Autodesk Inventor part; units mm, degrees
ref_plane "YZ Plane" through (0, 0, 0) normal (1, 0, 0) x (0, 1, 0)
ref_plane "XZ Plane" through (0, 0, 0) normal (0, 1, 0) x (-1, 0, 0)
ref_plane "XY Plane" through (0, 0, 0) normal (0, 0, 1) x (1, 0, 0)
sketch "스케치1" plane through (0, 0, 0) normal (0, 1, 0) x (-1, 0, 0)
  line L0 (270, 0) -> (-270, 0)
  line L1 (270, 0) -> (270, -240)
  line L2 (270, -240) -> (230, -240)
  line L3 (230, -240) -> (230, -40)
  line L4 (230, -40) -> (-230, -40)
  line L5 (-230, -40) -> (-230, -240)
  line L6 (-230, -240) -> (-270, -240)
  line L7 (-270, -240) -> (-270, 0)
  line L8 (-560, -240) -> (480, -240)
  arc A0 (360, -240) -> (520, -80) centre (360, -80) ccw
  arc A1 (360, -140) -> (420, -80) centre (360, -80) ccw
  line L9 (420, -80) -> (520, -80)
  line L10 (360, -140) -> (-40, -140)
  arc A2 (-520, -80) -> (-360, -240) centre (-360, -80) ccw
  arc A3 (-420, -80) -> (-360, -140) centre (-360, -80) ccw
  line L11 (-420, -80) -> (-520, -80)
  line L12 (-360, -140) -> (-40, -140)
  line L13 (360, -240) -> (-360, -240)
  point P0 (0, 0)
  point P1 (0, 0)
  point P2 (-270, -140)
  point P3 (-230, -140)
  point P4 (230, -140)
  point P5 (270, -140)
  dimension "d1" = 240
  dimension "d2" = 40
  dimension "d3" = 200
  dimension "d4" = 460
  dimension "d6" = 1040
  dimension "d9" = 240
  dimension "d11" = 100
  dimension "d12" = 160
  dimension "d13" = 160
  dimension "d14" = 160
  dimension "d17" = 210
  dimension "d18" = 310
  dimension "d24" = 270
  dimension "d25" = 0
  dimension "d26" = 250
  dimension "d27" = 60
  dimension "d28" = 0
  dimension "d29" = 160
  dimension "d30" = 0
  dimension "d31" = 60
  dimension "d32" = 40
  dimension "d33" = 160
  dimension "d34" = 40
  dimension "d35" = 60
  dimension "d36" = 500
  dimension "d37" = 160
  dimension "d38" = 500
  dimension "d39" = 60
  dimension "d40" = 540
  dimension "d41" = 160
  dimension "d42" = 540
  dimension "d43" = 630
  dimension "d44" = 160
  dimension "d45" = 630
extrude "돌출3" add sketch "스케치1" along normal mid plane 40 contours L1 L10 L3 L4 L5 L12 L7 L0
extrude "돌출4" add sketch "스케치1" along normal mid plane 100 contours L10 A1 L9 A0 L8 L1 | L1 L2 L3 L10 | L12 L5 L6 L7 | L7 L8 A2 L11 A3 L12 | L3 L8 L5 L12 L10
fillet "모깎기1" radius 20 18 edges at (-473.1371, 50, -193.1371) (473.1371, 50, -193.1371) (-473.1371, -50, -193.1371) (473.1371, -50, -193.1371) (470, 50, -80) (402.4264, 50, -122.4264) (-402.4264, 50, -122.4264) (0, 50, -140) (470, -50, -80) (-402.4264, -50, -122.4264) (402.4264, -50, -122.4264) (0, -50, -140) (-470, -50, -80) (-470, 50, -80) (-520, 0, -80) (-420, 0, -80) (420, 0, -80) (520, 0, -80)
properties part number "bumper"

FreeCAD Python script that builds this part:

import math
import FreeCAD as App
import Part
import Sketcher
from FreeCAD import Vector
Q = App.Units.Quantity


def edges_at(feature, points):
    """Names of the edges that pass closest to the given points."""
    edges = feature.Shape.Edges
    near = lambda p: min(range(len(edges)), key=lambda i: edges[i].distToShape(Part.Vertex(*p))[0])
    return sorted({f"Edge{near(p) + 1}" for p in points})


def add_polygon(sketch, points):
    """Adds a closed chain of lines whose ends are joined by coincident constraints."""
    first, n = sketch.GeometryCount, len(points)
    for a, b in zip(points, points[1:] + points[:1]):
        sketch.addGeometry(Part.LineSegment(App.Vector(*a, 0), App.Vector(*b, 0)), False)
    for i in range(n):
        sketch.addConstraint(Sketcher.Constraint("Coincident", first + i, 2, first + (i + 1) % n, 1))

doc = App.newDocument("Part")
body = doc.addObject("PartDesign::Body", "Body")

# Sketch on XZ plane
sketch1 = doc.addObject("Sketcher::SketchObject", "Sketch")
body.addObject(sketch1)
sketch1.AttachmentSupport = (doc.XZ_Plane, [""])
sketch1.MapMode = "FlatFace"
add_polygon(sketch1, [(-270, -140), (-270, 0), (270, 0), (270, -140), (230, -140), (230, -40), (-230, -40), (-230, -140)])  # lines 0-7
sketch1.addConstraint(Sketcher.Constraint("Vertical", 0))
sketch1.addConstraint(Sketcher.Constraint("Horizontal", 1))
sketch1.addConstraint(Sketcher.Constraint("Vertical", 2))
sketch1.addConstraint(Sketcher.Constraint("Horizontal", 3))
sketch1.addConstraint(Sketcher.Constraint("Vertical", 4))
sketch1.addConstraint(Sketcher.Constraint("Horizontal", 5))
sketch1.addConstraint(Sketcher.Constraint("Vertical", 6))
sketch1.addConstraint(Sketcher.Constraint("Horizontal", 7))
sketch1.addConstraint(Sketcher.Constraint("Symmetric", 0, 2, 1, 2, -1, 1))
sketch1.addConstraint(Sketcher.Constraint("Symmetric", 3, 2, 6, 2, -2))
sketch1.addConstraint(Sketcher.Constraint("DistanceX", 1, 1, 1, 2, Q("540 mm")))
sketch1.addConstraint(Sketcher.Constraint("DistanceX", 3, 2, 3, 1, Q("40 mm")))
sketch1.addConstraint(Sketcher.Constraint("DistanceY", 4, 1, 4, 2, Q("100 mm")))
sketch1.addConstraint(Sketcher.Constraint("DistanceY", 4, 2, -1, 1, Q("40 mm")))
pad1 = doc.addObject("PartDesign::Pad", "Pad")
body.addObject(pad1)
pad1.Profile = sketch1
pad1.Length = 40
pad1.Midplane = True

# Sketch on XZ plane
sketch2 = doc.addObject("Sketcher::SketchObject", "Sketch001")
body.addObject(sketch2)
sketch2.AttachmentSupport = (doc.XZ_Plane, [""])
sketch2.MapMode = "FlatFace"
sketch2.addGeometry(Part.LineSegment(Vector(-360, -140, 0), Vector(360, -140, 0)), False)
sketch2.addGeometry(Part.ArcOfCircle(Part.Circle(Vector(360, -80, 0), Vector(0, 0, 1), 60), math.radians(-90), math.radians(0)), False)
sketch2.addGeometry(Part.LineSegment(Vector(420, -80, 0), Vector(520, -80, 0)), False)
sketch2.addGeometry(Part.ArcOfCircle(Part.Circle(Vector(360, -80, 0), Vector(0, 0, 1), 160), math.radians(-90), math.radians(0)), False)
sketch2.addGeometry(Part.LineSegment(Vector(360, -240, 0), Vector(-360, -240, 0)), False)
sketch2.addGeometry(Part.ArcOfCircle(Part.Circle(Vector(-360, -80, 0), Vector(0, 0, 1), 160), math.radians(180), math.radians(270)), False)
sketch2.addGeometry(Part.LineSegment(Vector(-520, -80, 0), Vector(-420, -80, 0)), False)
sketch2.addGeometry(Part.ArcOfCircle(Part.Circle(Vector(-360, -80, 0), Vector(0, 0, 1), 60), math.radians(180), math.radians(270)), False)
sketch2.addConstraint(Sketcher.Constraint("Tangent", 0, 2, 1, 1))
sketch2.addConstraint(Sketcher.Constraint("Coincident", 1, 2, 2, 1))
sketch2.addConstraint(Sketcher.Constraint("Coincident", 2, 2, 3, 2))
sketch2.addConstraint(Sketcher.Constraint("Tangent", 3, 1, 4, 1))
sketch2.addConstraint(Sketcher.Constraint("Tangent", 4, 2, 5, 2))
sketch2.addConstraint(Sketcher.Constraint("Coincident", 5, 1, 6, 1))
sketch2.addConstraint(Sketcher.Constraint("Coincident", 6, 2, 7, 1))
sketch2.addConstraint(Sketcher.Constraint("Tangent", 7, 2, 0, 1))
sketch2.addConstraint(Sketcher.Constraint("Horizontal", 0))
sketch2.addConstraint(Sketcher.Constraint("Horizontal", 2))
sketch2.addConstraint(Sketcher.Constraint("Horizontal", 4))
sketch2.addConstraint(Sketcher.Constraint("Horizontal", 6))
sketch2.addConstraint(Sketcher.Constraint("Coincident", 3, 3, 1, 3))
sketch2.addConstraint(Sketcher.Constraint("Coincident", 7, 3, 5, 3))
sketch2.addConstraint(Sketcher.Constraint("Equal", 3, 5))
sketch2.addConstraint(Sketcher.Constraint("Symmetric", 2, 2, 5, 1, -2))
sketch2.addConstraint(Sketcher.Constraint("Horizontal", 7, 3, 1, 2))
sketch2.addConstraint(Sketcher.Constraint("Radius", 1, Q("60 mm")))
sketch2.addConstraint(Sketcher.Constraint("Radius", 3, Q("160 mm")))
sketch2.addConstraint(Sketcher.Constraint("DistanceY", 3, 1, -1, 1, Q("240 mm")))
sketch2.addConstraint(Sketcher.Constraint("DistanceX", 0, 1, 0, 2, Q("720 mm")))
pad2 = doc.addObject("PartDesign::Pad", "Pad001")
body.addObject(pad2)
pad2.Profile = sketch2
pad2.Length = 100
pad2.Midplane = True
doc.recompute()

fillet = doc.addObject("PartDesign::Fillet", "Fillet")
body.addObject(fillet)
fillet.Base = (pad2, edges_at(pad2, [
    (-473.137, 50, -193.137),
    (473.137, 50, -193.137),
    (-473.137, -50, -193.137),
    (473.137, -50, -193.137),
    (470, 50, -80),
    (402.426, 50, -122.426),
    (-402.426, 50, -122.426),
    (0, 50, -140),
    (470, -50, -80),
    (-402.426, -50, -122.426),
    (402.426, -50, -122.426),
    (0, -50, -140),
    (-470, -50, -80),
    (-470, 50, -80),
    (-520, 0, -80),
    (-420, 0, -80),
    (420, 0, -80),
    (520, 0, -80),
]))
fillet.Radius = 20

doc.recompute()
